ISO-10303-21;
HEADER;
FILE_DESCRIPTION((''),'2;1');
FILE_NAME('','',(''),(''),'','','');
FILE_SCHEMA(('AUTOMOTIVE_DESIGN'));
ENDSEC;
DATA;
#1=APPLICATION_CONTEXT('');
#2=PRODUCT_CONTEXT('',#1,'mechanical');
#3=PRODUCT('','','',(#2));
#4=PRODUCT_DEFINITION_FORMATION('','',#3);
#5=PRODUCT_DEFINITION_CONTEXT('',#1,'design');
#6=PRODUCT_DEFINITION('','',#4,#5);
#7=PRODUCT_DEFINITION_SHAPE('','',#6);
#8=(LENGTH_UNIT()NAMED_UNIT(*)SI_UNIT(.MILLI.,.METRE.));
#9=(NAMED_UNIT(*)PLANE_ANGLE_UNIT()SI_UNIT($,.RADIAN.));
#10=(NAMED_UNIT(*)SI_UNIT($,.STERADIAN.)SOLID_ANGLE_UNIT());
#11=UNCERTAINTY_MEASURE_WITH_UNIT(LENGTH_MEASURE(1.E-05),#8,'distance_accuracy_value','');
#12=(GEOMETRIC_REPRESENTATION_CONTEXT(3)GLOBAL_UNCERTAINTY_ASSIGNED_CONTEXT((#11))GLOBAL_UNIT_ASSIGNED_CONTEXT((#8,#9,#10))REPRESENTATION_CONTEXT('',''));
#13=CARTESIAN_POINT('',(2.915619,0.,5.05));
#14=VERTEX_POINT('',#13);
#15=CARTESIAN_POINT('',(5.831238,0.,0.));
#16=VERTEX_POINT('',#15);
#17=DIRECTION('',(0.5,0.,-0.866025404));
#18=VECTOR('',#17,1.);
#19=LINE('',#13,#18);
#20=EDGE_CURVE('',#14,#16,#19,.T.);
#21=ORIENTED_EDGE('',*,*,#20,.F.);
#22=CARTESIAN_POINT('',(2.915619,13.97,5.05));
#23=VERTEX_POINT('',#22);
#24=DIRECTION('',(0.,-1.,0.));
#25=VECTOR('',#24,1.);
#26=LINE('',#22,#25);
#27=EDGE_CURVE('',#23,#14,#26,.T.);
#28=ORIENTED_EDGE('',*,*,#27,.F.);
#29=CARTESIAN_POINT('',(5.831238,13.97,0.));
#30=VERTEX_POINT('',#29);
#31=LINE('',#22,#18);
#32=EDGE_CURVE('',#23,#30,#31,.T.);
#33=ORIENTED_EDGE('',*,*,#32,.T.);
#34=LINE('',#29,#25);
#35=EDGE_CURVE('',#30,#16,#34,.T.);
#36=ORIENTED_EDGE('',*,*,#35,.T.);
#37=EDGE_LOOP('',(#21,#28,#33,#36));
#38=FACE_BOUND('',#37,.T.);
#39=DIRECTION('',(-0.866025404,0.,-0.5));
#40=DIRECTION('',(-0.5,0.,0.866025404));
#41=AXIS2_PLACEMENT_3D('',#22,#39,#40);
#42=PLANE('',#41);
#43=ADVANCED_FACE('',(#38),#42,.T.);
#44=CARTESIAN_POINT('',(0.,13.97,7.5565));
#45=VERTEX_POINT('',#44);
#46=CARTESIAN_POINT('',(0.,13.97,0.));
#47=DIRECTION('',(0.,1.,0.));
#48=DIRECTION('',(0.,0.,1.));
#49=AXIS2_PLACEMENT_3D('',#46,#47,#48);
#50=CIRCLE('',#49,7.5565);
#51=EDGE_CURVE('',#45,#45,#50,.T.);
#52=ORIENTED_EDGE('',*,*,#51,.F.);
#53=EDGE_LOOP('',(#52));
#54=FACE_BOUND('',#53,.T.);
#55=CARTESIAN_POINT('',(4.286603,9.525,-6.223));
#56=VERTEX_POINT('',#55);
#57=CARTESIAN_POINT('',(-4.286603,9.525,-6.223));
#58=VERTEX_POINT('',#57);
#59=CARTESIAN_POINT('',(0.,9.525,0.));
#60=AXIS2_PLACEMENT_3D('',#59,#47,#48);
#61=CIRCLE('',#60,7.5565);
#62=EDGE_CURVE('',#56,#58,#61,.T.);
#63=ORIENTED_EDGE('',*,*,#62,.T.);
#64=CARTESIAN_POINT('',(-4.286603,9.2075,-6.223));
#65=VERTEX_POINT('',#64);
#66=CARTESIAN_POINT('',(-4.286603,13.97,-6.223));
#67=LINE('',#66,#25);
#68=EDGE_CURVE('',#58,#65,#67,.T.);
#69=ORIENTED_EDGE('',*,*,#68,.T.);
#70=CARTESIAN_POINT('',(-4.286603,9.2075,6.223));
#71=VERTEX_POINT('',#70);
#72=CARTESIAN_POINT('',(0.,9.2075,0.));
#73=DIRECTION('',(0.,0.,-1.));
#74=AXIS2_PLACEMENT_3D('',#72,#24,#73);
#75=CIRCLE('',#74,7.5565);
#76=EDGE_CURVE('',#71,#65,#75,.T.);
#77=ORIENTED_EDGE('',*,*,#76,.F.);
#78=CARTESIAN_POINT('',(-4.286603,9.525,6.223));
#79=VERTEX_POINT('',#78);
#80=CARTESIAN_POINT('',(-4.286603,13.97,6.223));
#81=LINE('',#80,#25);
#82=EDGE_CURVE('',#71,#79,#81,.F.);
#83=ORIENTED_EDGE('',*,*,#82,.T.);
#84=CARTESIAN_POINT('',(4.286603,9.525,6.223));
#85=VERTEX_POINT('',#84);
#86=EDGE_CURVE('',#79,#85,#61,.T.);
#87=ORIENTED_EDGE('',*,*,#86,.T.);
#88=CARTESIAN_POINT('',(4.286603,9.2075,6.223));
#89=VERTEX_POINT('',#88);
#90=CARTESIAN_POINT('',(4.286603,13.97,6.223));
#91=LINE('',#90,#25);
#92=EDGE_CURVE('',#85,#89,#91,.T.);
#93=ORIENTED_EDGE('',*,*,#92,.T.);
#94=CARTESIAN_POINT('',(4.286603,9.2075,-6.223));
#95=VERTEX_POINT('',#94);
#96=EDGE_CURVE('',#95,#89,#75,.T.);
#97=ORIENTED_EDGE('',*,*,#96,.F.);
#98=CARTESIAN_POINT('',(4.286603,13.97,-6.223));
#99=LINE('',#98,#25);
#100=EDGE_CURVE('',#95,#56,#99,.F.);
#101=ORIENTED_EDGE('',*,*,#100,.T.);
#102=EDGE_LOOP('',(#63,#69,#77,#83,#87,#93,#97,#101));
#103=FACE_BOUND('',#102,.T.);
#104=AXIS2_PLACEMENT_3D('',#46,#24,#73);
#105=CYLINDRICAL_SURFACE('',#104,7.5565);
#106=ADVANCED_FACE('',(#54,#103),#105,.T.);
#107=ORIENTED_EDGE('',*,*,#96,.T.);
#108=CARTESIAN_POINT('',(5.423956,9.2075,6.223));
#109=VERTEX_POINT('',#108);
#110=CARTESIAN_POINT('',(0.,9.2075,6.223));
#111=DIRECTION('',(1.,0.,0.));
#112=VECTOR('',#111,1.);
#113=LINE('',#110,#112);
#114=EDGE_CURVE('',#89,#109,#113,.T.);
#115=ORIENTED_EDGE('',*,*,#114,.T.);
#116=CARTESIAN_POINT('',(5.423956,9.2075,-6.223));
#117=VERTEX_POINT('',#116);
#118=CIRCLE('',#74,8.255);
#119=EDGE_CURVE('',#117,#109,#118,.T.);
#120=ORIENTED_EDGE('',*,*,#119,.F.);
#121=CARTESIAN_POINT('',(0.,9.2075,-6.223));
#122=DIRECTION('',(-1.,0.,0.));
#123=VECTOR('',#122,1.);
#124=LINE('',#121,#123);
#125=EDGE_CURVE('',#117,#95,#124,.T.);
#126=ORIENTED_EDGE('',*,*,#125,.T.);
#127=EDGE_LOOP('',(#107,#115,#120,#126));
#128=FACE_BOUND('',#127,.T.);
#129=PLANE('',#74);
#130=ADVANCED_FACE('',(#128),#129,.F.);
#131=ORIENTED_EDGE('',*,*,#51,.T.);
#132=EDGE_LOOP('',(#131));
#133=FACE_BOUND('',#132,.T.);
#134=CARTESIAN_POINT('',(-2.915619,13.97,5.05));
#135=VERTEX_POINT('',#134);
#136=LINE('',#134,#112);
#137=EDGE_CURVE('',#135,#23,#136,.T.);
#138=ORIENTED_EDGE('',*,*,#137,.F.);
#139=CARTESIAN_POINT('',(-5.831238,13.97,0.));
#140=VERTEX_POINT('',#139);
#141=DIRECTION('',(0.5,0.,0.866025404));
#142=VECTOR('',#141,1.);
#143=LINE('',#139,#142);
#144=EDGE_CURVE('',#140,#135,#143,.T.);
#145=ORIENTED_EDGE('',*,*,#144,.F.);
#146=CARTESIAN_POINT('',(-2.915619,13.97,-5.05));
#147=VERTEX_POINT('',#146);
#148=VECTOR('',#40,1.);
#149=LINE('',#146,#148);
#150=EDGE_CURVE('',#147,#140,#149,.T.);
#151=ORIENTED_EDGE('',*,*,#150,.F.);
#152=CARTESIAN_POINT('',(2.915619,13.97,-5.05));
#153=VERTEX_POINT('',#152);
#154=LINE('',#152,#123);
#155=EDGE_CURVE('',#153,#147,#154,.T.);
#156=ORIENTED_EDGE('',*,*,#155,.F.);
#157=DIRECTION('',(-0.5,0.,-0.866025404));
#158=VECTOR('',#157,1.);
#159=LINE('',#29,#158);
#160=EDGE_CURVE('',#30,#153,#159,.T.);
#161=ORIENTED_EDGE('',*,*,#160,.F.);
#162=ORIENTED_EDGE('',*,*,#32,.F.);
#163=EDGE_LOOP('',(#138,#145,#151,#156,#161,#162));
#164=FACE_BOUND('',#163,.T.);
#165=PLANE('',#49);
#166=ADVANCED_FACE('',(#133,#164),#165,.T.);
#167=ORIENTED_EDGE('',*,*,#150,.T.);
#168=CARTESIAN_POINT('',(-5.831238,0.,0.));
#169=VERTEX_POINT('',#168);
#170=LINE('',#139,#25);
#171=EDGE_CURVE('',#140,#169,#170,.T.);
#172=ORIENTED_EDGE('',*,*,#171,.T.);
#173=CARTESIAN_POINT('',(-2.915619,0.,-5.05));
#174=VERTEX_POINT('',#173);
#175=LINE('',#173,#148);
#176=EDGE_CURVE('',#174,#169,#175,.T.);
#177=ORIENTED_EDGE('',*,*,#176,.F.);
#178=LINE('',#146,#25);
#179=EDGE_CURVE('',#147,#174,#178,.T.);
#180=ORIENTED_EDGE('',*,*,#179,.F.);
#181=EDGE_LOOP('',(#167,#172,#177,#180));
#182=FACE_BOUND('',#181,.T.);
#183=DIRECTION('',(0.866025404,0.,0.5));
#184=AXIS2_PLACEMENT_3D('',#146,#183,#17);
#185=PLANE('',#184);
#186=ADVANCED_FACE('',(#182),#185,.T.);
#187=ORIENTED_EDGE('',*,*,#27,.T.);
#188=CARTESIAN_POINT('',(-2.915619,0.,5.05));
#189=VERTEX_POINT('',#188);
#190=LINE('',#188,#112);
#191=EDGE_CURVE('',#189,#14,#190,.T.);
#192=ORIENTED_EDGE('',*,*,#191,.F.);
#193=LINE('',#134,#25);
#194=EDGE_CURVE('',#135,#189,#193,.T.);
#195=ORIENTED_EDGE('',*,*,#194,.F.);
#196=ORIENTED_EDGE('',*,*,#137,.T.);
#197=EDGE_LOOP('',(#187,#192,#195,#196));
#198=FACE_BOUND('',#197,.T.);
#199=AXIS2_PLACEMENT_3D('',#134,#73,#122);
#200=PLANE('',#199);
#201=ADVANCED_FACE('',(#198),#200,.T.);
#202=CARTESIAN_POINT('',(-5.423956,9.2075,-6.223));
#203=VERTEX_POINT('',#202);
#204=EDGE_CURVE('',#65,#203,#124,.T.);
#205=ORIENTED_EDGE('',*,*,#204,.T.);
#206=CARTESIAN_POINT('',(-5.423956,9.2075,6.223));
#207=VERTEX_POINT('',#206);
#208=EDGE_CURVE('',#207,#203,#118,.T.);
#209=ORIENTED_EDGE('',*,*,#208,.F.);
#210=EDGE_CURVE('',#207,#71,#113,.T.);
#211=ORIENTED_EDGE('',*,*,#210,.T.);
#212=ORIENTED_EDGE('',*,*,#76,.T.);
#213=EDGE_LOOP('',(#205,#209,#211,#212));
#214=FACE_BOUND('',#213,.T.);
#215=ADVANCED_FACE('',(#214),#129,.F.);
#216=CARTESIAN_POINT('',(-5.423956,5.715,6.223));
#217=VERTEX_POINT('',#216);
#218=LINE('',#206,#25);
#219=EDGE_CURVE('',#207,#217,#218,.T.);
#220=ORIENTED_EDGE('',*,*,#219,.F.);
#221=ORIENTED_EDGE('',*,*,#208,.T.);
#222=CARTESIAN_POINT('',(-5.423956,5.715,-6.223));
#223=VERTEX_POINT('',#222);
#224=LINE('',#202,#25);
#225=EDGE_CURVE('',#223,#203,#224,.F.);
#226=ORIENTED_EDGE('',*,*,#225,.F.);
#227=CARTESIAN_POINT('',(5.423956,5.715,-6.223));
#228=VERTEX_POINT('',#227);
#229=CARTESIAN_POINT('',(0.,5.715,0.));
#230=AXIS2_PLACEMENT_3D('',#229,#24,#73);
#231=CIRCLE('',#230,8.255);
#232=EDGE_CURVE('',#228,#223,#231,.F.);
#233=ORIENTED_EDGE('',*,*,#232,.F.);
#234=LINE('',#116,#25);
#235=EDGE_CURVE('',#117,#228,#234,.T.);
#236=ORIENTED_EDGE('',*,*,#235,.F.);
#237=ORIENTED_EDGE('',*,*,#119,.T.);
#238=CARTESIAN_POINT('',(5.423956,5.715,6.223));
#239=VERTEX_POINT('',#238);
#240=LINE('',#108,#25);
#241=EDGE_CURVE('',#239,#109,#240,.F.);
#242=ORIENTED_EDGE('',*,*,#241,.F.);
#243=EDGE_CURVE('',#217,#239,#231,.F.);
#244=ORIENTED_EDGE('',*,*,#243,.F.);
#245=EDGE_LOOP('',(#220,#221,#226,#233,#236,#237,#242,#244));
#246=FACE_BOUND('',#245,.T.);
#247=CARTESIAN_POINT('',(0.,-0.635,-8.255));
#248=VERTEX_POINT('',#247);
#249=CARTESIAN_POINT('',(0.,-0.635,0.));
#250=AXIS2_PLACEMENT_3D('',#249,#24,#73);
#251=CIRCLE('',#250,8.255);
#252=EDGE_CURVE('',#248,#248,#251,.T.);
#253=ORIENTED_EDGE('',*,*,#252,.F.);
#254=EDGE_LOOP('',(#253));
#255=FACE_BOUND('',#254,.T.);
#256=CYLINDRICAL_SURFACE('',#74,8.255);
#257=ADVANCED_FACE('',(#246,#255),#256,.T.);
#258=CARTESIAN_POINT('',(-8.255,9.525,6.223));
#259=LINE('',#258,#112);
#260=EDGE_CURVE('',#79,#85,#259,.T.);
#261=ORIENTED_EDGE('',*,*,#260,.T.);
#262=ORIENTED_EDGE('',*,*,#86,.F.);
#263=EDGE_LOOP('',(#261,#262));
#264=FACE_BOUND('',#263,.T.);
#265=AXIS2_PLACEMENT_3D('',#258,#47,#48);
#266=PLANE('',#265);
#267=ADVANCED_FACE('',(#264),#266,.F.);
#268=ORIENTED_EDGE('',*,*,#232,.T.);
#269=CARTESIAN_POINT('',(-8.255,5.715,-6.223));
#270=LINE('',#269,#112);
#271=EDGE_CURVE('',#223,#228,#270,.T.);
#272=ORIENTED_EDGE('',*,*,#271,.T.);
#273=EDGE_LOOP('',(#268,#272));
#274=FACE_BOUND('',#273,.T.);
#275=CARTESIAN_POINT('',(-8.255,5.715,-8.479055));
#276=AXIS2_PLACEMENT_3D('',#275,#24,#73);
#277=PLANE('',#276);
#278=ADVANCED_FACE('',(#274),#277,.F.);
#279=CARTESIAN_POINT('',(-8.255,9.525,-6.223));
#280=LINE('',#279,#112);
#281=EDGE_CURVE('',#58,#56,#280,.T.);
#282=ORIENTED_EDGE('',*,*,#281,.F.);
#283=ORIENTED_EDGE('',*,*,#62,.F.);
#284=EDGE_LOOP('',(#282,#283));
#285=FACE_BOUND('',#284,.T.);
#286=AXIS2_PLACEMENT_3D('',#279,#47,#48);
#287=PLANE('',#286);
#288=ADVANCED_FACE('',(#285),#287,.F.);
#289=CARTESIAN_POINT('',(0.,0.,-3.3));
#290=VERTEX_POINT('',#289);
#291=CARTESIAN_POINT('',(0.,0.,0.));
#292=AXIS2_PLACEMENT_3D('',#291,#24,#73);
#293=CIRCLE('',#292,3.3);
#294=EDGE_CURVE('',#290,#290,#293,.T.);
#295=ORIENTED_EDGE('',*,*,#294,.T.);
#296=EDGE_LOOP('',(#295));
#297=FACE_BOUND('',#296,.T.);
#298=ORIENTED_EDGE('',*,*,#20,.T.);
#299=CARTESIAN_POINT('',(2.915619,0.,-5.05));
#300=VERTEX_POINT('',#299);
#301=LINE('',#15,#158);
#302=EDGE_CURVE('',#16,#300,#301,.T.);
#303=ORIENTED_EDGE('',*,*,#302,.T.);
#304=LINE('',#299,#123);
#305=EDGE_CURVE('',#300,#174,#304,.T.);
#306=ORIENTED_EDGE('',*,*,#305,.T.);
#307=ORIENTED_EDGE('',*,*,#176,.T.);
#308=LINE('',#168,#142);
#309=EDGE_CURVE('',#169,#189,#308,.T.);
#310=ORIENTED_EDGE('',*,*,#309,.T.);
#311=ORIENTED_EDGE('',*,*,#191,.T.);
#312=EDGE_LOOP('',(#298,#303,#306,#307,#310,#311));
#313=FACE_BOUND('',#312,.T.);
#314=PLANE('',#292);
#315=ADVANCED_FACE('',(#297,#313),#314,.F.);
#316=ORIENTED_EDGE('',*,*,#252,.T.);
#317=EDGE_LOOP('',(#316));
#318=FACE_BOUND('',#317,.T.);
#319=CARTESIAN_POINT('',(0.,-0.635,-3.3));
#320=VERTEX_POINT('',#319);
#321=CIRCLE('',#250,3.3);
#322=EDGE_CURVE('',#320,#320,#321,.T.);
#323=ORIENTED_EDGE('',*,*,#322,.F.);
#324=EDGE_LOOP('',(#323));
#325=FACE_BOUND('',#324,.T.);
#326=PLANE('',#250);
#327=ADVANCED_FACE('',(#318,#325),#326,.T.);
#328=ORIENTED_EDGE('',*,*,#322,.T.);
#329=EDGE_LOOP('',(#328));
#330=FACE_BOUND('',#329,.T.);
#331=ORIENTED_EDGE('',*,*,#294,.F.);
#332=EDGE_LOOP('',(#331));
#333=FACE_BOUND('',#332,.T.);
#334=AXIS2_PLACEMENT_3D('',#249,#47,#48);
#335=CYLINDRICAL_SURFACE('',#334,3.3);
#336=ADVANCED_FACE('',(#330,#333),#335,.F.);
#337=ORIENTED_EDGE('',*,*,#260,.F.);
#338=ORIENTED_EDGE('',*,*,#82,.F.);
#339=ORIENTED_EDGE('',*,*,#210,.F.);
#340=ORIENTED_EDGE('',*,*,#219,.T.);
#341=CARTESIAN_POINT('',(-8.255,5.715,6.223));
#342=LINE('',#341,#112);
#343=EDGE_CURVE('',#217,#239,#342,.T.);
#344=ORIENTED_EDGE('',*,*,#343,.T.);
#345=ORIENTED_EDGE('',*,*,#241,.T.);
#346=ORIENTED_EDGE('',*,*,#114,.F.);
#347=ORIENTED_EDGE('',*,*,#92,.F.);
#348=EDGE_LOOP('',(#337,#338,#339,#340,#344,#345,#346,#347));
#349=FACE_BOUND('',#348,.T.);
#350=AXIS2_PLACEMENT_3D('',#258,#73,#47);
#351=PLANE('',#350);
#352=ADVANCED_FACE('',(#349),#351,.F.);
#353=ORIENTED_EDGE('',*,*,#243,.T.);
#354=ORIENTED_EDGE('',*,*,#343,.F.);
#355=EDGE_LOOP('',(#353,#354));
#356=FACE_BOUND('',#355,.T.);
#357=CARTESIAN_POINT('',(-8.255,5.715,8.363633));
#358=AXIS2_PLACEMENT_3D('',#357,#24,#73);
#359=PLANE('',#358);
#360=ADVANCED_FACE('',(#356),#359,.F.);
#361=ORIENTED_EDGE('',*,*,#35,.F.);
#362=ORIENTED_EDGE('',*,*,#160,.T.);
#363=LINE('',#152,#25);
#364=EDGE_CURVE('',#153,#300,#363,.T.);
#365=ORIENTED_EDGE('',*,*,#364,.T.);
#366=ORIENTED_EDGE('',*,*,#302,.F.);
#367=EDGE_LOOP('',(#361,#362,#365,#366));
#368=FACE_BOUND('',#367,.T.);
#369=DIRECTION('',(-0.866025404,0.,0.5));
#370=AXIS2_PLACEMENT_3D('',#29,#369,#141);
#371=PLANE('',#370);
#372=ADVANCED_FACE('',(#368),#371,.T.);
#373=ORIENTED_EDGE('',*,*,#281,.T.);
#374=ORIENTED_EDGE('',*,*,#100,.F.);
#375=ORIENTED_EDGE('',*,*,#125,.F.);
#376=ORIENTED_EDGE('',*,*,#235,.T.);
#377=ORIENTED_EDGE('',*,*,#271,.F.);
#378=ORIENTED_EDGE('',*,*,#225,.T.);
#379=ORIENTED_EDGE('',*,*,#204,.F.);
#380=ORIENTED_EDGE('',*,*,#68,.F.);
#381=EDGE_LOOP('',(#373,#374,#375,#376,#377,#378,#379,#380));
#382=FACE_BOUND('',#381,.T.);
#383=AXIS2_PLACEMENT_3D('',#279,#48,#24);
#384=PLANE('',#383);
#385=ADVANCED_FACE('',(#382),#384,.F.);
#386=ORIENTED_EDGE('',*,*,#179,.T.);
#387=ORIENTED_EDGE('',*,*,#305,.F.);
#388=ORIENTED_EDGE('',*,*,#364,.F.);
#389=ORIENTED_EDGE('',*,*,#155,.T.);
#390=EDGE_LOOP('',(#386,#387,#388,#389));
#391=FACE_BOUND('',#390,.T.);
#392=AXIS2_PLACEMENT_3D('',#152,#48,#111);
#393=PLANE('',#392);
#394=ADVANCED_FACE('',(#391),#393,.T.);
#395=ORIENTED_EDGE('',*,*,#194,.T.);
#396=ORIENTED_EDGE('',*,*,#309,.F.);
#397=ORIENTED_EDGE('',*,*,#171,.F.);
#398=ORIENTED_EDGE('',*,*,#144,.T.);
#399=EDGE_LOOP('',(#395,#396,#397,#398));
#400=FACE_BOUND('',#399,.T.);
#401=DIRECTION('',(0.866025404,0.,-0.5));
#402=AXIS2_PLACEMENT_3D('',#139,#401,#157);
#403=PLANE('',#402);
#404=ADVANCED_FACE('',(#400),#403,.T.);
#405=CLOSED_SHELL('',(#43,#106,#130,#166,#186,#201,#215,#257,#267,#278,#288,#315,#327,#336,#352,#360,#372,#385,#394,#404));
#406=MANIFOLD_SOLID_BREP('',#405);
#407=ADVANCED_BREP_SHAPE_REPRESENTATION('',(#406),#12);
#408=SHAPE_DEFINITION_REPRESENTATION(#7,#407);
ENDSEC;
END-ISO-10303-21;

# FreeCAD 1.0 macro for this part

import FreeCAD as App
import Part
import Sketcher
from FreeCAD import Vector
Q = App.Units.Quantity


def add_polygon(sketch, points):
    """Adds a closed chain of lines whose ends are joined by coincident constraints."""
    first, n = sketch.GeometryCount, len(points)
    for a, b in zip(points, points[1:] + points[:1]):
        sketch.addGeometry(Part.LineSegment(App.Vector(*a, 0), App.Vector(*b, 0)), False)
    for i in range(n):
        sketch.addConstraint(Sketcher.Constraint("Coincident", first + i, 2, first + (i + 1) % n, 1))

doc = App.newDocument("Part")
body = doc.addObject("PartDesign::Body", "Body")

sketch1 = doc.addObject("Sketcher::SketchObject", "Sketch")
body.addObject(sketch1)
sketch1.AttachmentSupport = (doc.XZ_Plane, [""])
sketch1.MapMode = "FlatFace"
sketch1.addGeometry(Part.Circle(Vector(0, 0, 0), Vector(0, 0, 1), 8), False)
add_polygon(sketch1, [(-6, 0), (-3, -5), (3, -5), (6, 0), (3, 5), (-3, 5)])
sketch1.addConstraint([
    Sketcher.Constraint("Horizontal", 2),
    Sketcher.Constraint("Horizontal", 5),
    Sketcher.Constraint("Coincident", 0, 3, -1, 1),
    Sketcher.Constraint("Symmetric", 1, 2, 4, 2, -1, 1),
    Sketcher.Constraint("Symmetric", 3, 2, 6, 2, -1, 1),
    Sketcher.Constraint("PointOnObject", 3, 2, -1),
    Sketcher.Constraint("Parallel", 3, 6),
    Sketcher.Constraint("Vertical", 2, 2, 4, 2),
    Sketcher.Constraint("Diameter", 0, Q("0.595 in")),
    Sketcher.Constraint("Angle", 1, Q("-60 deg")),
    Sketcher.Constraint("DistanceY", 1, 2, -1, 1, Q("5.05 mm")),
    Sketcher.Constraint("DistanceX", 2, 1, 2, 2, Q("5.831238 mm")),
])
pad1 = doc.addObject("PartDesign::Pad", "Pad")
body.addObject(pad1)
pad1.Profile = sketch1
pad1.Length = Q("0.55 in")
pad1.Reversed = True

sketch2 = doc.addObject("Sketcher::SketchObject", "Sketch001")
body.addObject(sketch2)
sketch2.AttachmentSupport = (doc.XZ_Plane, [""])
sketch2.MapMode = "FlatFace"
sketch2.addGeometry([
    Part.Circle(Vector(0, 0, 0), Vector(0, 0, 1), 7.6),
    Part.Circle(Vector(0, 0, 0), Vector(0, 0, 1), 3.3),
], False)
sketch2.addConstraint([
    Sketcher.Constraint("Coincident", 0, 3, -1, 1),
    Sketcher.Constraint("Coincident", 1, 3, -1, 1),
    Sketcher.Constraint("Diameter", 0, Q("0.595 in")),
    Sketcher.Constraint("Diameter", 1, Q("6.6 mm")),
])
pad2 = doc.addObject("PartDesign::Pad", "Pad001")
body.addObject(pad2)
pad2.Profile = sketch2
pad2.Length = Q("0.025 in")

sketch3 = doc.addObject("Sketcher::SketchObject", "Sketch002")
body.addObject(sketch3)
sketch3.AttachmentSupport = (doc.XZ_Plane, [""])
sketch3.MapMode = "FlatFace"
sketch3.AttachmentOffset = App.Placement(Vector(0, 0, 0.025 * 25.4), App.Rotation())
sketch3.addGeometry([
    Part.Circle(Vector(0, 0, 0), Vector(0, 0, 1), 8),
    Part.Circle(Vector(0, 0, 0), Vector(0, 0, 1), 8),
], False)
sketch3.addConstraint([
    Sketcher.Constraint("Coincident", 0, 3, -1, 1),
    Sketcher.Constraint("Coincident", 1, 3, -1, 1),
    Sketcher.Constraint("Diameter", 0, Q("0.65 in")),
    Sketcher.Constraint("Diameter", 1, Q("0.595 in")),
])
pad3 = doc.addObject("PartDesign::Pad", "Pad002")
body.addObject(pad3)
pad3.Profile = sketch3
pad3.Length = Q("0.3875 in")
pad3.Reversed = True

sketch4 = doc.addObject("Sketcher::SketchObject", "Sketch003")
body.addObject(sketch4)
sketch4.AttachmentSupport = (doc.YZ_Plane, [""])
sketch4.MapMode = "FlatFace"
add_polygon(sketch4, [(9.5, 8.4), (5.7, 8.4), (5.7, 6.2), (9.5, 6.2)])
add_polygon(sketch4, [(9.5, -6.2), (5.7, -6.2), (5.7, -8.5), (9.5, -8.5)])
sketch4.addConstraint([
    Sketcher.Constraint("Horizontal", 0),
    Sketcher.Constraint("Vertical", 1),
    Sketcher.Constraint("Horizontal", 2),
    Sketcher.Constraint("Vertical", 3),
    Sketcher.Constraint("Horizontal", 4),
    Sketcher.Constraint("Vertical", 5),
    Sketcher.Constraint("Horizontal", 6),
    Sketcher.Constraint("Vertical", 7),
    Sketcher.Constraint("Symmetric", 1, 2, 4, 2, -1),
    Sketcher.Constraint("Vertical", 3, 2, 6, 2),
    Sketcher.Constraint("DistanceX", 0, 2, 0, 1, Q("0.15 in")),
    Sketcher.Constraint("DistanceY", 4, 2, 1, 2, Q("0.49 in")),
    Sketcher.Constraint("DistanceX", -1, 1, 0, 2, Q("0.225 in")),
    Sketcher.Constraint("DistanceY", 1, 2, 1, 1, Q("2.140633 mm")),
    Sketcher.Constraint("DistanceY", 5, 2, 5, 1, Q("2.256055 mm")),
])
pocket1 = doc.addObject("PartDesign::Pocket", "Pocket")
body.addObject(pocket1)
pocket1.Profile = sketch4
pocket1.Type = "ThroughAll"
pocket1.Midplane = True

doc.recompute()
